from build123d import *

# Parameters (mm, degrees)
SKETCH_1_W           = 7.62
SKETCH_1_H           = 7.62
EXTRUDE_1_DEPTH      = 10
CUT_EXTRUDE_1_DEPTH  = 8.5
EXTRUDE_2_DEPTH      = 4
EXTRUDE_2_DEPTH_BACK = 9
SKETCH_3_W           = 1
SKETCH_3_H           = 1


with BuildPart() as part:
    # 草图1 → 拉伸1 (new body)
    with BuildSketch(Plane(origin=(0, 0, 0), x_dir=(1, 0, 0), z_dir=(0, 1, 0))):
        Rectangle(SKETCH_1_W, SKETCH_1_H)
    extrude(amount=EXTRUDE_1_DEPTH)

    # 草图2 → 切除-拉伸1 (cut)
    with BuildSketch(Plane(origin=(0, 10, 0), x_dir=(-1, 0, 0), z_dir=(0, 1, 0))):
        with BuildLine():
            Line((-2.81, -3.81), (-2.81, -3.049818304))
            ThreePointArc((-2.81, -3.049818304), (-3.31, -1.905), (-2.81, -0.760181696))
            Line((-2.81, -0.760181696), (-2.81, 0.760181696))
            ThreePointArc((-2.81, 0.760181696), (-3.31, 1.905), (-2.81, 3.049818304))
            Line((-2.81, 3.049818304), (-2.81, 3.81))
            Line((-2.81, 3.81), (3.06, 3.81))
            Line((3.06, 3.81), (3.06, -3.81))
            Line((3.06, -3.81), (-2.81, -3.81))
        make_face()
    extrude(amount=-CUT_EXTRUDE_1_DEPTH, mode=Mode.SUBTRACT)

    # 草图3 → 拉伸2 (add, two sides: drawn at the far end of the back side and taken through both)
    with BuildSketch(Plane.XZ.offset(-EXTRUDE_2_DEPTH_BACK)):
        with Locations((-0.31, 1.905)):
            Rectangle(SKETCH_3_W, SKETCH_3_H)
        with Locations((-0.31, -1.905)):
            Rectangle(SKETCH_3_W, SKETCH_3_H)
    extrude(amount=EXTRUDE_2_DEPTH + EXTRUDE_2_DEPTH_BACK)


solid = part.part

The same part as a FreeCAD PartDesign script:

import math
import FreeCAD as App
import Part
import Sketcher


def add_polygon(sketch, points):
    """Adds a closed chain of lines whose ends are joined by coincident constraints."""
    first, n = sketch.GeometryCount, len(points)
    for a, b in zip(points, points[1:] + points[:1]):
        sketch.addGeometry(Part.LineSegment(App.Vector(*a, 0), App.Vector(*b, 0)), False)
    for i in range(n):
        sketch.addConstraint(Sketcher.Constraint("Coincident", first + i, 2, first + (i + 1) % n, 1))

doc = App.newDocument("Part")
body = doc.addObject("PartDesign::Body", "Body")

# Sketch on XZ plane
sketch1 = body.newObject("Sketcher::SketchObject", "Sketch")
sketch1.AttachmentSupport = (doc.getObject("XZ_Plane"), [""])
sketch1.MapMode = "FlatFace"
add_polygon(sketch1, [(-4, -4), (-4, 4), (4, 4), (4, -4)])  # lines 0-3
sketch1.addConstraint(Sketcher.Constraint("Vertical", 0))
sketch1.addConstraint(Sketcher.Constraint("Horizontal", 1))
sketch1.addConstraint(Sketcher.Constraint("Vertical", 2))
sketch1.addConstraint(Sketcher.Constraint("Horizontal", 3))
sketch1.addConstraint(Sketcher.Constraint("Symmetric", 0, 2, 2, 2, -1, 1))
sketch1.addConstraint(Sketcher.Constraint("Equal", 3, 0))
sketch1.addConstraint(Sketcher.Constraint("DistanceX", 1, 1, 1, 2, 7.62))
pad1 = body.newObject("PartDesign::Pad", "Pad")
pad1.Profile = sketch1
pad1.Length = 10
pad1.Reversed = True

# Sketch on XZ plane
sketch2 = body.newObject("Sketcher::SketchObject", "Sketch001")
sketch2.AttachmentSupport = (doc.getObject("XZ_Plane"), [""])
sketch2.MapMode = "FlatFace"
sketch2.AttachmentOffset = App.Placement(App.Vector(0, 0, -10), App.Rotation())
sketch2.addGeometry(Part.LineSegment(App.Vector(2.8, -3, 0), App.Vector(2.8, -3.8, 0)), False)
sketch2.addGeometry(Part.LineSegment(App.Vector(2.8, -3.8, 0), App.Vector(-3.1, -3.8, 0)), False)
sketch2.addGeometry(Part.LineSegment(App.Vector(-3.1, -3.8, 0), App.Vector(-3.1, 3.8, 0)), False)
sketch2.addGeometry(Part.LineSegment(App.Vector(-3.1, 3.8, 0), App.Vector(2.8, 3.8, 0)), False)
sketch2.addGeometry(Part.LineSegment(App.Vector(2.8, 3.8, 0), App.Vector(2.8, 3, 0)), False)
sketch2.addGeometry(Part.ArcOfCircle(Part.Circle(App.Vector(1.7, 1.9, 0), App.Vector(0, 0, 1), 1.6), math.radians(-47), math.radians(47)), False)
sketch2.addGeometry(Part.LineSegment(App.Vector(2.8, 0.8, 0), App.Vector(2.8, -0.8, 0)), False)
sketch2.addGeometry(Part.ArcOfCircle(Part.Circle(App.Vector(1.7, -1.9, 0), App.Vector(0, 0, 1), 1.6), math.radians(-47), math.radians(47)), False)
sketch2.addConstraint(Sketcher.Constraint("Coincident", 0, 2, 1, 1))
sketch2.addConstraint(Sketcher.Constraint("Coincident", 1, 2, 2, 1))
sketch2.addConstraint(Sketcher.Constraint("Coincident", 2, 2, 3, 1))
sketch2.addConstraint(Sketcher.Constraint("Coincident", 3, 2, 4, 1))
sketch2.addConstraint(Sketcher.Constraint("Coincident", 4, 2, 5, 2))
sketch2.addConstraint(Sketcher.Constraint("Coincident", 5, 1, 6, 1))
sketch2.addConstraint(Sketcher.Constraint("Coincident", 6, 2, 7, 2))
sketch2.addConstraint(Sketcher.Constraint("Coincident", 7, 1, 0, 1))
sketch2.addConstraint(Sketcher.Constraint("Vertical", 0))
sketch2.addConstraint(Sketcher.Constraint("Horizontal", 1))
sketch2.addConstraint(Sketcher.Constraint("Vertical", 2))
sketch2.addConstraint(Sketcher.Constraint("Horizontal", 3))
sketch2.addConstraint(Sketcher.Constraint("Vertical", 4))
sketch2.addConstraint(Sketcher.Constraint("Vertical", 6))
sketch2.addConstraint(Sketcher.Constraint("Equal", 5, 7))
sketch2.addConstraint(Sketcher.Constraint("Symmetric", 5, 3, 7, 3, -1))
sketch2.addConstraint(Sketcher.Constraint("Symmetric", 0, 2, 3, 2, -1))
sketch2.addConstraint(Sketcher.Constraint("Vertical", 4, 2, 5, 1))
sketch2.addConstraint(Sketcher.Constraint("DistanceX", 1, 2, 1, 1, 5.87))
sketch2.addConstraint(Sketcher.Constraint("DistanceY", 2, 1, 2, 2, 7.62))
sketch2.addConstraint(Sketcher.Constraint("DistanceX", -1, 1, 0, 2, 2.81))
sketch2.addConstraint(Sketcher.Constraint("Radius", 5, 1.560609))
sketch2.addConstraint(Sketcher.Constraint("DistanceY", 7, 3, 5, 3, 3.81))
sketch2.addConstraint(Sketcher.Constraint("DistanceY", 0, 2, 0, 1, 0.760182))
pocket1 = body.newObject("PartDesign::Pocket", "Pocket")
pocket1.Profile = sketch2
pocket1.Length = 8.5
pocket1.Reversed = True

# Sketch on XZ plane
sketch3 = body.newObject("Sketcher::SketchObject", "Sketch002")
sketch3.AttachmentSupport = (doc.getObject("XZ_Plane"), [""])
sketch3.MapMode = "FlatFace"
add_polygon(sketch3, [(-0.8, 2.4), (-0.8, 1.4), (0.2, 1.4), (0.2, 2.4)])  # lines 0-3
add_polygon(sketch3, [(-0.8, -1.4), (-0.8, -2.4), (0.2, -2.4), (0.2, -1.4)])  # lines 4-7
sketch3.addConstraint(Sketcher.Constraint("Vertical", 0))
sketch3.addConstraint(Sketcher.Constraint("Horizontal", 1))
sketch3.addConstraint(Sketcher.Constraint("Vertical", 2))
sketch3.addConstraint(Sketcher.Constraint("Horizontal", 3))
sketch3.addConstraint(Sketcher.Constraint("Vertical", 4))
sketch3.addConstraint(Sketcher.Constraint("Horizontal", 5))
sketch3.addConstraint(Sketcher.Constraint("Vertical", 6))
sketch3.addConstraint(Sketcher.Constraint("Horizontal", 7))
sketch3.addConstraint(Sketcher.Constraint("Symmetric", 3, 2, 4, 2, -1))
sketch3.addConstraint(Sketcher.Constraint("Symmetric", 1, 2, 6, 2, -1))
sketch3.addConstraint(Sketcher.Constraint("Equal", 7, 0))
sketch3.addConstraint(Sketcher.Constraint("DistanceX", 1, 1, 1, 2, 1.0))
sketch3.addConstraint(Sketcher.Constraint("DistanceX", 0, 2, -1, 1, 0.81))
sketch3.addConstraint(Sketcher.Constraint("DistanceY", 4, 2, 0, 2, 3.81))
pad2 = body.newObject("PartDesign::Pad", "Pad001")
pad2.Profile = sketch3
pad2.Type = "TwoLengths"
pad2.Length = 4
pad2.Length2 = 9

doc.recompute()
